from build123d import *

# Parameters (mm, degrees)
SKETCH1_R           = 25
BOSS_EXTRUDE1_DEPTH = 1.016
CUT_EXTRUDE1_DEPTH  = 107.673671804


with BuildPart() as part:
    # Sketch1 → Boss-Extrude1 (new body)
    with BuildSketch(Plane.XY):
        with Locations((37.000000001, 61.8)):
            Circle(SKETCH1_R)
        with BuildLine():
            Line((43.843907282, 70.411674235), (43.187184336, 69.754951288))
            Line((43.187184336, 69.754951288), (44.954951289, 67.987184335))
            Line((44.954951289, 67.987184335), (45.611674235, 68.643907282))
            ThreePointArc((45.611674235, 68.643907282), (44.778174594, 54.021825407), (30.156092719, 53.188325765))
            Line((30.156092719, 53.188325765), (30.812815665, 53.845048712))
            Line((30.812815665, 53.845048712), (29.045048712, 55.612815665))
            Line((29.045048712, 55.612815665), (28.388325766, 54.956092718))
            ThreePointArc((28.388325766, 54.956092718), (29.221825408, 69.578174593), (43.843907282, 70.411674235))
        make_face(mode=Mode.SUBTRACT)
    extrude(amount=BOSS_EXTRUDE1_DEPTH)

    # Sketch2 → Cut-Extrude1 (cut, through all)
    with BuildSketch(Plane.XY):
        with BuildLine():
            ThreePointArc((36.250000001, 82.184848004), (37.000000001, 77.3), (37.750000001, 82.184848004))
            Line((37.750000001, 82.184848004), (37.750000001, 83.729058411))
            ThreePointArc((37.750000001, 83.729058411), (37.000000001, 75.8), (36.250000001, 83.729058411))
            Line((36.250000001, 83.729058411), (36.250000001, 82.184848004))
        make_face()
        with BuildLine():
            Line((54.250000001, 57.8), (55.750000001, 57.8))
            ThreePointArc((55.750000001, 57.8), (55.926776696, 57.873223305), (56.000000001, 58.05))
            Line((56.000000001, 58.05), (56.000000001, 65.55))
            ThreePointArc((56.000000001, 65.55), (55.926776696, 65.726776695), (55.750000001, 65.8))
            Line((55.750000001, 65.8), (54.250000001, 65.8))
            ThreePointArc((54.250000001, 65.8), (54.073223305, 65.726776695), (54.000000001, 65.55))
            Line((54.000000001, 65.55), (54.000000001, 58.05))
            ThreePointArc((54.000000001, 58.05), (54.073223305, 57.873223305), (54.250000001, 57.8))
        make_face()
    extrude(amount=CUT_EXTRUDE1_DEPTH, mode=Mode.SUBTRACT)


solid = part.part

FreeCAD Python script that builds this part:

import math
import FreeCAD as App
import Part
import Sketcher
from FreeCAD import Vector
Q = App.Units.Quantity

doc = App.newDocument("Part")
body = doc.addObject("PartDesign::Body", "Body")

sketch1 = doc.addObject("Sketcher::SketchObject", "Sketch")
body.addObject(sketch1)
sketch1.AttachmentSupport = (doc.XY_Plane, [""])
sketch1.MapMode = "FlatFace"
sketch1.addGeometry(Part.Circle(Vector(37, 61.8, 0), Vector(0, 0, 1), 25), False)
sketch1.addGeometry(Part.ArcOfCircle(Part.Circle(Vector(37, 61.8, 0), Vector(0, 0, 1), 11), math.radians(51.524979), math.radians(218.475021)), False)
sketch1.addGeometry(Part.LineSegment(Vector(43.843907, 70.411674, 0), Vector(43.187184, 69.754951, 0)), False)
sketch1.addGeometry(Part.LineSegment(Vector(43.187184, 69.754951, 0), Vector(44.954951, 67.987184, 0)), False)
sketch1.addGeometry(Part.LineSegment(Vector(44.954951, 67.987184, 0), Vector(45.611674, 68.643907, 0)), False)
sketch1.addGeometry(Part.ArcOfCircle(Part.Circle(Vector(37, 61.8, 0), Vector(0, 0, 1), 11), math.radians(-128.475021), math.radians(38.475021)), False)
sketch1.addGeometry(Part.LineSegment(Vector(30.156093, 53.188326, 0), Vector(30.812816, 53.845049, 0)), False)
sketch1.addGeometry(Part.LineSegment(Vector(30.812816, 53.845049, 0), Vector(29.045049, 55.612816, 0)), False)
sketch1.addGeometry(Part.LineSegment(Vector(29.045049, 55.612816, 0), Vector(28.388326, 54.956093, 0)), False)
sketch1.addConstraint(Sketcher.Constraint("Coincident", 1, 1, 2, 1))
sketch1.addConstraint(Sketcher.Constraint("Coincident", 2, 2, 3, 1))
sketch1.addConstraint(Sketcher.Constraint("Coincident", 3, 2, 4, 1))
sketch1.addConstraint(Sketcher.Constraint("Coincident", 4, 2, 5, 2))
sketch1.addConstraint(Sketcher.Constraint("Coincident", 5, 1, 6, 1))
sketch1.addConstraint(Sketcher.Constraint("Coincident", 6, 2, 7, 1))
sketch1.addConstraint(Sketcher.Constraint("Coincident", 7, 2, 8, 1))
sketch1.addConstraint(Sketcher.Constraint("Coincident", 8, 2, 1, 2))
sketch1.addConstraint(Sketcher.Constraint("Coincident", 1, 3, 0, 3))
sketch1.addConstraint(Sketcher.Constraint("Coincident", 5, 3, 0, 3))
sketch1.addConstraint(Sketcher.Constraint("Equal", 1, 5))
sketch1.addConstraint(Sketcher.Constraint("Perpendicular", 2, 3))
sketch1.addConstraint(Sketcher.Constraint("Perpendicular", 3, 4))
sketch1.addConstraint(Sketcher.Constraint("Parallel", 4, 6))
sketch1.addConstraint(Sketcher.Constraint("Perpendicular", 6, 7))
sketch1.addConstraint(Sketcher.Constraint("Perpendicular", 7, 8))
sketch1.addConstraint(Sketcher.Constraint("Equal", 2, 4))
sketch1.addConstraint(Sketcher.Constraint("Equal", 4, 6))
sketch1.addConstraint(Sketcher.Constraint("Equal", 3, 7))
sketch1.addConstraint(Sketcher.Constraint("Equal", 6, 8))
sketch1.addConstraint(Sketcher.Constraint("Diameter", 0, Q("50 mm")))
sketch1.addConstraint(Sketcher.Constraint("Radius", 1, Q("11 mm")))
sketch1.addConstraint(Sketcher.Constraint("Angle", 2, Q("-135 deg")))
sketch1.addConstraint(Sketcher.Constraint("DistanceX", -1, 1, 0, 3, Q("37 mm")))
sketch1.addConstraint(Sketcher.Constraint("Distance", 3, Q("2.5 mm")))
sketch1.addConstraint(Sketcher.Constraint("DistanceY", -1, 1, 0, 3, Q("61.8 mm")))
sketch1.addConstraint(Sketcher.Constraint("DistanceY", -1, 1, 2, 2, Q("69.754951 mm")))
pad1 = doc.addObject("PartDesign::Pad", "Pad")
body.addObject(pad1)
pad1.Profile = sketch1
pad1.Length = 1.016

sketch2 = doc.addObject("Sketcher::SketchObject", "Sketch001")
body.addObject(sketch2)
sketch2.AttachmentSupport = (doc.XY_Plane, [""])
sketch2.MapMode = "FlatFace"
sketch2.addGeometry(Part.ArcOfCircle(Part.Circle(Vector(37, 79.8, 0), Vector(0, 0, 1), 2.5), math.radians(107.457603), math.radians(432.542397)), False)
sketch2.addGeometry(Part.LineSegment(Vector(36.25, 82.184848, 0), Vector(36.25, 83.729058, 0)), False)
sketch2.addGeometry(Part.ArcOfCircle(Part.Circle(Vector(37, 79.8, 0), Vector(0, 0, 1), 4), math.radians(100.806923), math.radians(439.193077)), False)
sketch2.addGeometry(Part.LineSegment(Vector(37.75, 83.729058, 0), Vector(37.75, 82.184848, 0)), False)
sketch2.addGeometry(Part.LineSegment(Vector(54.25, 57.8, 0), Vector(55.75, 57.8, 0)), False)
sketch2.addGeometry(Part.ArcOfCircle(Part.Circle(Vector(55.75, 58.05, 0), Vector(0, 0, 1), 0.25), math.radians(-90), math.radians(0)), False)
sketch2.addGeometry(Part.LineSegment(Vector(56, 58.05, 0), Vector(56, 65.55, 0)), False)
sketch2.addGeometry(Part.ArcOfCircle(Part.Circle(Vector(55.75, 65.55, 0), Vector(0, 0, 1), 0.25), math.radians(0), math.radians(90)), False)
sketch2.addGeometry(Part.LineSegment(Vector(55.75, 65.8, 0), Vector(54.25, 65.8, 0)), False)
sketch2.addGeometry(Part.ArcOfCircle(Part.Circle(Vector(54.25, 65.55, 0), Vector(0, 0, 1), 0.25), math.radians(90), math.radians(180)), False)
sketch2.addGeometry(Part.LineSegment(Vector(54, 65.55, 0), Vector(54, 58.05, 0)), False)
sketch2.addGeometry(Part.ArcOfCircle(Part.Circle(Vector(54.25, 58.05, 0), Vector(0, 0, 1), 0.25), math.radians(180), math.radians(270)), False)
sketch2.addConstraint(Sketcher.Constraint("Coincident", 0, 1, 1, 1))
sketch2.addConstraint(Sketcher.Constraint("Coincident", 1, 2, 2, 1))
sketch2.addConstraint(Sketcher.Constraint("Coincident", 2, 2, 3, 1))
sketch2.addConstraint(Sketcher.Constraint("Coincident", 3, 2, 0, 2))
sketch2.addConstraint(Sketcher.Constraint("Tangent", 4, 2, 5, 1))
sketch2.addConstraint(Sketcher.Constraint("Tangent", 5, 2, 6, 1))
sketch2.addConstraint(Sketcher.Constraint("Tangent", 6, 2, 7, 1))
sketch2.addConstraint(Sketcher.Constraint("Tangent", 7, 2, 8, 1))
sketch2.addConstraint(Sketcher.Constraint("Tangent", 8, 2, 9, 1))
sketch2.addConstraint(Sketcher.Constraint("Tangent", 9, 2, 10, 1))
sketch2.addConstraint(Sketcher.Constraint("Tangent", 10, 2, 11, 1))
sketch2.addConstraint(Sketcher.Constraint("Tangent", 11, 2, 4, 1))
sketch2.addConstraint(Sketcher.Constraint("Vertical", 1))
sketch2.addConstraint(Sketcher.Constraint("Vertical", 3))
sketch2.addConstraint(Sketcher.Constraint("Horizontal", 4))
sketch2.addConstraint(Sketcher.Constraint("Vertical", 6))
sketch2.addConstraint(Sketcher.Constraint("Horizontal", 8))
sketch2.addConstraint(Sketcher.Constraint("Vertical", 10))
sketch2.addConstraint(Sketcher.Constraint("Coincident", 2, 3, 0, 3))
sketch2.addConstraint(Sketcher.Constraint("Equal", 5, 7))
sketch2.addConstraint(Sketcher.Constraint("Equal", 7, 9))
sketch2.addConstraint(Sketcher.Constraint("Equal", 9, 11))
sketch2.addConstraint(Sketcher.Constraint("Horizontal", 1, 2, 2, 2))
sketch2.addConstraint(Sketcher.Constraint("Radius", 2, Q("4 mm")))
sketch2.addConstraint(Sketcher.Constraint("Radius", 0, Q("2.5 mm")))
sketch2.addConstraint(Sketcher.Constraint("Radius", 5, Q("0.25 mm")))
sketch2.addConstraint(Sketcher.Constraint("DistanceX", 4, 1, 4, 2, Q("1.5 mm")))
sketch2.addConstraint(Sketcher.Constraint("DistanceY", 6, 1, 6, 2, Q("7.5 mm")))
sketch2.addConstraint(Sketcher.Constraint("DistanceX", -1, 1, 0, 3, Q("37 mm")))
sketch2.addConstraint(Sketcher.Constraint("DistanceX", -1, 1, 5, 2, Q("56 mm")))
sketch2.addConstraint(Sketcher.Constraint("DistanceX", 0, 1, 9, 3, Q("18 mm")))
sketch2.addConstraint(Sketcher.Constraint("DistanceY", 4, 2, 0, 3, Q("22 mm")))
sketch2.addConstraint(Sketcher.Constraint("DistanceY", -1, 1, 0, 3, Q("79.8 mm")))
pocket1 = doc.addObject("PartDesign::Pocket", "Pocket")
body.addObject(pocket1)
pocket1.Profile = sketch2
pocket1.Type = "ThroughAll"
pocket1.Reversed = True

doc.recompute()
